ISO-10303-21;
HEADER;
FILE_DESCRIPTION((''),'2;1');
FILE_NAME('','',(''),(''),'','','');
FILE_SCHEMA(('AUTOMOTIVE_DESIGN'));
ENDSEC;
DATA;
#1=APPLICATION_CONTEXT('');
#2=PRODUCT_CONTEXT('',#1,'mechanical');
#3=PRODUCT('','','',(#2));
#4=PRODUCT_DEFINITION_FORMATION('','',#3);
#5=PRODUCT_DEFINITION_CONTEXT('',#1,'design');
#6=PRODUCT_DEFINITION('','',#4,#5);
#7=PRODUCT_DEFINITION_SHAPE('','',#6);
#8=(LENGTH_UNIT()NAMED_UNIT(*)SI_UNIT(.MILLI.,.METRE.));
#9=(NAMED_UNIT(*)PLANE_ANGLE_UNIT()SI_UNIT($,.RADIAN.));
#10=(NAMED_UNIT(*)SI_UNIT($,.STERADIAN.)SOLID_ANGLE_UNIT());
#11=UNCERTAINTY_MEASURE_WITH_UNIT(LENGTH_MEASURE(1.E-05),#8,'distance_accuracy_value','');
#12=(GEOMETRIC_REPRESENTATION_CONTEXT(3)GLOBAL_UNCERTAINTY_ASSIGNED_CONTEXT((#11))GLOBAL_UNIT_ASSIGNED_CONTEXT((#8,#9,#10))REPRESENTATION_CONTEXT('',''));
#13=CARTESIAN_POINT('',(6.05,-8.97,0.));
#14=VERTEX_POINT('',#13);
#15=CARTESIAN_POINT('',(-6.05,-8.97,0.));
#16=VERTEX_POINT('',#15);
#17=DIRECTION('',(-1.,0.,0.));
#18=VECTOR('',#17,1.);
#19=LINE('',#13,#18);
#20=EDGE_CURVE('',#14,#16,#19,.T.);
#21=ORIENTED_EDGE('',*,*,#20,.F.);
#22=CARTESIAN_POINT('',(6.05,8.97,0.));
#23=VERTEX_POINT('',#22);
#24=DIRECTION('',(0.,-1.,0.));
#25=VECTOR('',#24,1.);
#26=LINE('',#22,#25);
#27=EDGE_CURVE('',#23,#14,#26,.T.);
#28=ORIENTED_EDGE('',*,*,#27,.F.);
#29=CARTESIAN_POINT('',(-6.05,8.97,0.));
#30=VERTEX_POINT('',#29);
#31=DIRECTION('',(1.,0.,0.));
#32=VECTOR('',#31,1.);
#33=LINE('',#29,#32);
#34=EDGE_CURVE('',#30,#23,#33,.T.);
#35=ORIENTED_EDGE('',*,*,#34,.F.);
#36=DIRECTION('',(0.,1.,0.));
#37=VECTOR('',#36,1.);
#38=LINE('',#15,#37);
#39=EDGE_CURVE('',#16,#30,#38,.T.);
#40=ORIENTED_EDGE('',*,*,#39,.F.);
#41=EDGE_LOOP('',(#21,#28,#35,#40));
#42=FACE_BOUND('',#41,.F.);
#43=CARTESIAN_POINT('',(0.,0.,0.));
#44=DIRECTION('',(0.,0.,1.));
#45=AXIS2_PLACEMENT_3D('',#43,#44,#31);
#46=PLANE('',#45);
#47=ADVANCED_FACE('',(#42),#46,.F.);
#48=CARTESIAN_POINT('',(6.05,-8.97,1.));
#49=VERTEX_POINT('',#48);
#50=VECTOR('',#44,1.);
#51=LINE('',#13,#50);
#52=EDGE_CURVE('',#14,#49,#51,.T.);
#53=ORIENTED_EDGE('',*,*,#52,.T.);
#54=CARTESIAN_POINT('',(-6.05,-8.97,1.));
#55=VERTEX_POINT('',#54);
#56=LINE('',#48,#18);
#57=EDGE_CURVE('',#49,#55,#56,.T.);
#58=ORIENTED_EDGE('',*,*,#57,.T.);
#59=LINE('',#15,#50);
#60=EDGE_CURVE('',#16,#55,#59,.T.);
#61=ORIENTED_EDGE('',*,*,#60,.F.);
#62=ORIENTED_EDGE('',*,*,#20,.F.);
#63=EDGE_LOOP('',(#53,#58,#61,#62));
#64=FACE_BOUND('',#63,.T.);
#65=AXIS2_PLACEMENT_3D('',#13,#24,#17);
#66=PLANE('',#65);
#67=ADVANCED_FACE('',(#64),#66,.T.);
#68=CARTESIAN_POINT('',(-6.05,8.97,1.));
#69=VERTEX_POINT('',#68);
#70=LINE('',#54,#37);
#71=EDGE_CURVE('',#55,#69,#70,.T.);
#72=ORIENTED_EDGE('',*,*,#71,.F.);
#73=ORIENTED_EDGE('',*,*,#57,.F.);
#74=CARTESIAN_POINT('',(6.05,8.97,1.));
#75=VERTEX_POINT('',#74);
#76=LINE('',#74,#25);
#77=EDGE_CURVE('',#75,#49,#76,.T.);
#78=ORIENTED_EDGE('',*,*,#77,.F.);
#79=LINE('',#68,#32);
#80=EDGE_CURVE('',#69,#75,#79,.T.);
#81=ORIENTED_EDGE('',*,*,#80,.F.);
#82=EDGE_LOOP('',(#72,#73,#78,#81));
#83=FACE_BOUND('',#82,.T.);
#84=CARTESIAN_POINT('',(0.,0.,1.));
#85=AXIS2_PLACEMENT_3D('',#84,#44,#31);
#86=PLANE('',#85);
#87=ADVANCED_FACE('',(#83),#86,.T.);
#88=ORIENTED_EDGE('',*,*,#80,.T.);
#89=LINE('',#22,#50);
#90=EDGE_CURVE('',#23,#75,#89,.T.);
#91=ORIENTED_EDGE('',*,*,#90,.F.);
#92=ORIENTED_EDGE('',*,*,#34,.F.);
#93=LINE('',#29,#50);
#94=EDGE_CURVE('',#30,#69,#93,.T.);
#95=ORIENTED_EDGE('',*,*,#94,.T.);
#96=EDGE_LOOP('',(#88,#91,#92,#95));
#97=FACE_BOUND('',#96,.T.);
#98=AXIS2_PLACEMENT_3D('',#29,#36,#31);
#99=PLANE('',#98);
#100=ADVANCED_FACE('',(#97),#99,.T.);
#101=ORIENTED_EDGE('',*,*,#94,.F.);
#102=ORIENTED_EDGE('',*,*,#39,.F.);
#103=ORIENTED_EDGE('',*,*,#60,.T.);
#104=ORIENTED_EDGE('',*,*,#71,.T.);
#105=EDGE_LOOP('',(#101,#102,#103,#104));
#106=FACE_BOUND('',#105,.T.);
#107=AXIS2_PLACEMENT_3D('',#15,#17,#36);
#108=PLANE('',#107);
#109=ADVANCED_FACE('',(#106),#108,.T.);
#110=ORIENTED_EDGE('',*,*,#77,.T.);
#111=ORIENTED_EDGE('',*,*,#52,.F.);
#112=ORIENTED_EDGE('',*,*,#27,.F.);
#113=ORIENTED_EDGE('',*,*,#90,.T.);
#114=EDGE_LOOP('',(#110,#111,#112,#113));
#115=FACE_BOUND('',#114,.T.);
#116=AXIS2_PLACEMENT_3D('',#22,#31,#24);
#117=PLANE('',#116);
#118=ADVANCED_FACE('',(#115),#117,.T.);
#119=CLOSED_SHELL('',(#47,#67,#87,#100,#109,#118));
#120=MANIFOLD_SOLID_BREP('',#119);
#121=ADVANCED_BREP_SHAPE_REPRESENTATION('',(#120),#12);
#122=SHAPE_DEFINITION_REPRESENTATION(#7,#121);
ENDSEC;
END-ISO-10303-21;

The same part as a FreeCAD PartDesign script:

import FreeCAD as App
import Part
import Sketcher
Q = App.Units.Quantity


def add_polygon(sketch, points):
    """Adds a closed chain of lines whose ends are joined by coincident constraints."""
    first, n = sketch.GeometryCount, len(points)
    for a, b in zip(points, points[1:] + points[:1]):
        sketch.addGeometry(Part.LineSegment(App.Vector(*a, 0), App.Vector(*b, 0)), False)
    for i in range(n):
        sketch.addConstraint(Sketcher.Constraint("Coincident", first + i, 2, first + (i + 1) % n, 1))

doc = App.newDocument("Part")
body = doc.addObject("PartDesign::Body", "Body")

# Sketch on XY plane
sketch1 = doc.addObject("Sketcher::SketchObject", "Sketch")
body.addObject(sketch1)
sketch1.AttachmentSupport = (doc.XY_Plane, [""])
sketch1.MapMode = "FlatFace"
add_polygon(sketch1, [(-6.05, 8.97), (-6.05, -8.97), (6.05, -8.97), (6.05, 8.97)])  # lines 0-3
sketch1.addConstraint(Sketcher.Constraint("Vertical", 0))
sketch1.addConstraint(Sketcher.Constraint("Horizontal", 1))
sketch1.addConstraint(Sketcher.Constraint("Vertical", 2))
sketch1.addConstraint(Sketcher.Constraint("Horizontal", 3))
sketch1.addConstraint(Sketcher.Constraint("Symmetric", 0, 2, 2, 2, -1, 1))
sketch1.addConstraint(Sketcher.Constraint("DistanceX", 1, 1, 1, 2, Q("12.1 mm")))
sketch1.addConstraint(Sketcher.Constraint("DistanceY", 0, 2, 0, 1, Q("17.94 mm")))
pad1 = doc.addObject("PartDesign::Pad", "Pad")
body.addObject(pad1)
pad1.Profile = sketch1
pad1.Length = 1

doc.recompute()
